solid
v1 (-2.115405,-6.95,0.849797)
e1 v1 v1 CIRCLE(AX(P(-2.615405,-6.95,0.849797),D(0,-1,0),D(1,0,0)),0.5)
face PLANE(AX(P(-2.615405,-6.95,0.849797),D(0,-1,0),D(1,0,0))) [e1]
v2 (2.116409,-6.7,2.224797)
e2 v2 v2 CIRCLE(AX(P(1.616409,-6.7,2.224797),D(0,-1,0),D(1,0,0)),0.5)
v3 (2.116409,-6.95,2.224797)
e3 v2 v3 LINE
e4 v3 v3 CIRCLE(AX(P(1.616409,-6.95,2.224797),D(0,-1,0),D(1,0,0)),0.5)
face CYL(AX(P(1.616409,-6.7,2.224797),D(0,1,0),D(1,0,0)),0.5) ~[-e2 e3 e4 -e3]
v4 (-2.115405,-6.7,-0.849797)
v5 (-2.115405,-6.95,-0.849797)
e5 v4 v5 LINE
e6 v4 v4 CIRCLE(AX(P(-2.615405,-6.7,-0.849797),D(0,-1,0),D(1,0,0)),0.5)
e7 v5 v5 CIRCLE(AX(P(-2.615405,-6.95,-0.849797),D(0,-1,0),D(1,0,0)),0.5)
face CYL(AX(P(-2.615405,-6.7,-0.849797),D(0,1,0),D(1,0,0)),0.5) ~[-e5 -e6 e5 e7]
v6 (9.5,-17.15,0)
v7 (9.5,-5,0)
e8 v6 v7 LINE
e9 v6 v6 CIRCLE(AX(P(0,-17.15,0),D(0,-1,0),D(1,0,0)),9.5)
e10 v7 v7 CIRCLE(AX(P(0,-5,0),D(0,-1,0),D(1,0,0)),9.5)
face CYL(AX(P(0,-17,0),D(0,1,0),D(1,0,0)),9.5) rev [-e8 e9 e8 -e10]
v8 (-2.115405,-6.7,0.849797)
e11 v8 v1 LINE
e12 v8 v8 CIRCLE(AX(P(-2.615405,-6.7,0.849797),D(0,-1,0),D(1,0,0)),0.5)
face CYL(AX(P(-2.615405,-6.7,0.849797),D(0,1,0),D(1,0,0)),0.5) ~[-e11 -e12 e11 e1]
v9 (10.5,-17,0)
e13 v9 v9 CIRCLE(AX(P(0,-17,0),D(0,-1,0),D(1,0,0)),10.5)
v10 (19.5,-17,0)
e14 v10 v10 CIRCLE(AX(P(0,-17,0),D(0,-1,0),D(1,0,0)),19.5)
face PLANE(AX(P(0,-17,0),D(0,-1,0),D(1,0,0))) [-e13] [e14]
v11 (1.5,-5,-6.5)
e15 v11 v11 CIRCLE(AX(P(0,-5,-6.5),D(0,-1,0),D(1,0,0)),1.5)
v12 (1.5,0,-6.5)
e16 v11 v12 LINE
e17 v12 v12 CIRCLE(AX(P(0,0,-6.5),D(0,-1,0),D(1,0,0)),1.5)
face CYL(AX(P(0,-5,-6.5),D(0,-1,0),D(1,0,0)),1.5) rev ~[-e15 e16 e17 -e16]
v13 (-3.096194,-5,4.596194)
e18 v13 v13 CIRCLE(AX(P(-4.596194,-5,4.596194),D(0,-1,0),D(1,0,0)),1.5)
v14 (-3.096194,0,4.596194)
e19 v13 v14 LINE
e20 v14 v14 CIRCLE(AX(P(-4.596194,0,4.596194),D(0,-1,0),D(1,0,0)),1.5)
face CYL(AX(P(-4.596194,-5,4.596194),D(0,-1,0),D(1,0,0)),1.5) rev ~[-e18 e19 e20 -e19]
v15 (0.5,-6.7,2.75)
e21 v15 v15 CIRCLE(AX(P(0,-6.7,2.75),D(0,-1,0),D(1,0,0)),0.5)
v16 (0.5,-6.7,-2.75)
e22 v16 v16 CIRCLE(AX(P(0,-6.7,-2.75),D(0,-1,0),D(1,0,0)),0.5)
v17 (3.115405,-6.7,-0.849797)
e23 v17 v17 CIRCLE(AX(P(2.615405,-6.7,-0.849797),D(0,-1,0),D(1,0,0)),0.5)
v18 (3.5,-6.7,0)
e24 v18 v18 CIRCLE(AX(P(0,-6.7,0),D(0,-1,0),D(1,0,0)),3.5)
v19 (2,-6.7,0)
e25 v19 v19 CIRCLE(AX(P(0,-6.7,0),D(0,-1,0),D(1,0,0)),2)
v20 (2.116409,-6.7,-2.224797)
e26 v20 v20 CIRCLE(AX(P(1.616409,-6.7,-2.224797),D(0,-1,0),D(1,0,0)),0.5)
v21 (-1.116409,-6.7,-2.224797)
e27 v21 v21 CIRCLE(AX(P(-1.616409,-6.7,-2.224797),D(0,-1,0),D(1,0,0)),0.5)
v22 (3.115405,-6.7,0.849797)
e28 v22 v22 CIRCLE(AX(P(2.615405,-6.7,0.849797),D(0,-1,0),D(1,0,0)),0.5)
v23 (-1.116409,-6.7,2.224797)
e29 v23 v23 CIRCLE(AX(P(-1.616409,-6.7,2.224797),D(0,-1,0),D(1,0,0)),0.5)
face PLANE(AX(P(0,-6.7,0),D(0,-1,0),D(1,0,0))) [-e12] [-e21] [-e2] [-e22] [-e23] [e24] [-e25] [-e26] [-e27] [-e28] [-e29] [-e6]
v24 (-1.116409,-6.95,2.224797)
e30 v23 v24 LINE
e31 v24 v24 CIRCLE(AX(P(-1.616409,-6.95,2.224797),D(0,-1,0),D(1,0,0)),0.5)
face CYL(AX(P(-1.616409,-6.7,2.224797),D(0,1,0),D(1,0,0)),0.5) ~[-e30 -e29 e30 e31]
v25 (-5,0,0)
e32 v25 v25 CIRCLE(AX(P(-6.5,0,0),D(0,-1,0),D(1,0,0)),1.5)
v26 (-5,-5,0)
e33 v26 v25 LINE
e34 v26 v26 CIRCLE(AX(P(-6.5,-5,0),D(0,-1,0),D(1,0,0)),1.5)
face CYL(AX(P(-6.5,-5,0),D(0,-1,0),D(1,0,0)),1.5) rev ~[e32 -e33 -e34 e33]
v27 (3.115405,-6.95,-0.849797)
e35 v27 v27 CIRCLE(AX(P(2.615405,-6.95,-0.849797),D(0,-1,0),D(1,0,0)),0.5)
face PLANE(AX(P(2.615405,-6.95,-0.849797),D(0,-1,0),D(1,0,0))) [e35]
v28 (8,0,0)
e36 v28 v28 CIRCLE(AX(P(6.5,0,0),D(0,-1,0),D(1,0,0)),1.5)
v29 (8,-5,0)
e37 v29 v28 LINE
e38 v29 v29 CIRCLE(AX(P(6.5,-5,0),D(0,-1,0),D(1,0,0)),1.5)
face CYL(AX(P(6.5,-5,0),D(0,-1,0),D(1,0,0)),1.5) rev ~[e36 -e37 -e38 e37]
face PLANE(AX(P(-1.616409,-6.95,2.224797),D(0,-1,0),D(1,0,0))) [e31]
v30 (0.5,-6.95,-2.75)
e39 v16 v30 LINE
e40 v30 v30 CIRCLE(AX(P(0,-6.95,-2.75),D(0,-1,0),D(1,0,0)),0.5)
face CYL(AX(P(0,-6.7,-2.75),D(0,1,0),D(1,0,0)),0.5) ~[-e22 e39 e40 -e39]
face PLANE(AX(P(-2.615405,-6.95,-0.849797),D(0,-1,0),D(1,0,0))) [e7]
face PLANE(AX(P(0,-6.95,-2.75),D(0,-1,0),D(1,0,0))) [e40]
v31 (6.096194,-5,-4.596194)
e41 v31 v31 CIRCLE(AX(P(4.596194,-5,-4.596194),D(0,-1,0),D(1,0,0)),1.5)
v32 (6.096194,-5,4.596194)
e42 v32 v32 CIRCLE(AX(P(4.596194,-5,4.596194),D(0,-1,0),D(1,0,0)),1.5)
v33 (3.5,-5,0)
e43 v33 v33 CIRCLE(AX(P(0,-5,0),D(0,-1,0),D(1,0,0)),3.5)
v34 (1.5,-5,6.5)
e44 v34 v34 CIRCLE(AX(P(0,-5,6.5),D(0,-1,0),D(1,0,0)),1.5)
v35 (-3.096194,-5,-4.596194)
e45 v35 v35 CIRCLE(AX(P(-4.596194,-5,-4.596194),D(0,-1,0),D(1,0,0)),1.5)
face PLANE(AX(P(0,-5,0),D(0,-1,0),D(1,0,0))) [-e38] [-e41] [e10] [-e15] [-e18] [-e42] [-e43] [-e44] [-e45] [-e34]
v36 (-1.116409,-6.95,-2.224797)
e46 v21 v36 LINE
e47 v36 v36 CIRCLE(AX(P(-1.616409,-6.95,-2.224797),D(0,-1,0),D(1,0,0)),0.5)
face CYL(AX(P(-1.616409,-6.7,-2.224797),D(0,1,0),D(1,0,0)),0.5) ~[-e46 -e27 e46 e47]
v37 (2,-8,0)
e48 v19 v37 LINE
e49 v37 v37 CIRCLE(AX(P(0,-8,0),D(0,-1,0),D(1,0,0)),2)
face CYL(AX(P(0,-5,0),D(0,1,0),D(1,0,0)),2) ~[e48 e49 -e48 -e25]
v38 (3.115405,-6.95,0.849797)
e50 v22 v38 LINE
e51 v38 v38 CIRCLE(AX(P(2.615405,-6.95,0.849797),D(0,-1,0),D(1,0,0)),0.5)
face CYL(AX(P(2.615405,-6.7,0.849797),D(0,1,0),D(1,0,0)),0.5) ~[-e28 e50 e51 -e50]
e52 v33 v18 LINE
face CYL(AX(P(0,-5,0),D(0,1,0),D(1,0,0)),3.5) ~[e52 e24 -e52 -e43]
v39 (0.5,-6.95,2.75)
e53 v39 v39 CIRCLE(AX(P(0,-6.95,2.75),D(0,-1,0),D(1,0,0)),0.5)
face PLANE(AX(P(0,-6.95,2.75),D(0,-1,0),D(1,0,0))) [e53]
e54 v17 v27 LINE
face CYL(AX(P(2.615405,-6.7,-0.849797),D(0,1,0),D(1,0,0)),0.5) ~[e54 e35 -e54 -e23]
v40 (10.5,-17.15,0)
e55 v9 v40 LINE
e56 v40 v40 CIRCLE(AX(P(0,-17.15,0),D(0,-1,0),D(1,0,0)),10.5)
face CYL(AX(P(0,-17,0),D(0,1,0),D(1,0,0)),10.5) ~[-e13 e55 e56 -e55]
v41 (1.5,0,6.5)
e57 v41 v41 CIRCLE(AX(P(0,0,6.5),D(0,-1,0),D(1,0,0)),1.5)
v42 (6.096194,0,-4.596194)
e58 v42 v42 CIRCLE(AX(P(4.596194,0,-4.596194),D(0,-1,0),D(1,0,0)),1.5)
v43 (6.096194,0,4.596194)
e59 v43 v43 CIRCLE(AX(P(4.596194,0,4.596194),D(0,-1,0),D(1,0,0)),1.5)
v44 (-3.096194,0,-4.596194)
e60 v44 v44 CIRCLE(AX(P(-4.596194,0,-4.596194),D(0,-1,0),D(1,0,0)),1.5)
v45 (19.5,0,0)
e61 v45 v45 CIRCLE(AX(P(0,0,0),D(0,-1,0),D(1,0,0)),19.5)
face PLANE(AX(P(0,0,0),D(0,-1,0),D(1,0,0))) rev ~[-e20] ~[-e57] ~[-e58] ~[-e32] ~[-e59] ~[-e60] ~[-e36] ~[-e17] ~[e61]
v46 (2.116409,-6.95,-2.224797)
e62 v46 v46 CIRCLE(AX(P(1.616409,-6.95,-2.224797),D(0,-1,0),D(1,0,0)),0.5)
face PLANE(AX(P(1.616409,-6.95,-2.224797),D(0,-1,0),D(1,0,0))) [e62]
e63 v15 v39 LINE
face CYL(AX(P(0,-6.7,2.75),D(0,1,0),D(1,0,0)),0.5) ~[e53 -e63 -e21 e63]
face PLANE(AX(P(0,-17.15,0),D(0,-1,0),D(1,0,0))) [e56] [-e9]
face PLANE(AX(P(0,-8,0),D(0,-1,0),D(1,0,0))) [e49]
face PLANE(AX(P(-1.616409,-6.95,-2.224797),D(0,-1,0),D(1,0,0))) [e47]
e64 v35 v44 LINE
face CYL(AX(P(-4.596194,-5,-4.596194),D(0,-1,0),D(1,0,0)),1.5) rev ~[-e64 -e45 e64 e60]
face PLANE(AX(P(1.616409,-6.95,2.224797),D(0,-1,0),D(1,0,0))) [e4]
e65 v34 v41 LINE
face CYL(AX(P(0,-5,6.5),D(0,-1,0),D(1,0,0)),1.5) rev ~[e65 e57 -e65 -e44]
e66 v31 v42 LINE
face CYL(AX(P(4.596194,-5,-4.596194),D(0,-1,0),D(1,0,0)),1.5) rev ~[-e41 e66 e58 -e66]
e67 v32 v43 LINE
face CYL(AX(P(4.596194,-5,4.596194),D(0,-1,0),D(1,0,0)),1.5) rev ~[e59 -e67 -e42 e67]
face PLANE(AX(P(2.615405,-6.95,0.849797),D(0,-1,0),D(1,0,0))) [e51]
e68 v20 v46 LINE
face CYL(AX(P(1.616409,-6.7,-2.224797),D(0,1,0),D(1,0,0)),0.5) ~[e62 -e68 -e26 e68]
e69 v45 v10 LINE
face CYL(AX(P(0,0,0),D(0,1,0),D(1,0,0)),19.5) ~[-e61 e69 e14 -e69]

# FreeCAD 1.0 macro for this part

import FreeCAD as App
import Part
import Sketcher

V = App.Vector

doc = App.newDocument("Part")
params = doc.addObject("Spreadsheet::Sheet", "Params")
for row, (alias, value) in enumerate([
    ("sketch1_diameter", "39 mm"),
    ("pad1_length", "17 mm"),
    ("sketch2_diameter", "19 mm"),
    ("pocket1_length", "12 mm"),
    ("sketch3_diameter", "21 mm"),
    ("sketch3_diameter2", "19 mm"),
    ("pad2_length", "0.15 mm"),
    ("sketch4_diameter", "4 mm"),
    ("pad3_length", "3 mm"),
    ("sketch5_diameter", "7 mm"),
    ("sketch5_diameter2", "4 mm"),
    ("pad4_length", "1.7 mm"),
    ("sketch6_diameter", "1 mm"),
    ("pad5_length", "0.25 mm"),
    ("sketch7_diameter", "3 mm"),
    ("pocket2_length", "25 mm"),
], start=1):
    params.set(f"A{row}", alias)
    params.set(f"B{row}", "=" + value)
    params.setAlias(f"B{row}", alias)

body = doc.addObject("PartDesign::Body", "Body")

# Sketch on XZ plane
sketch1 = body.newObject("Sketcher::SketchObject", "Sketch")
sketch1.AttachmentSupport = (doc.getObject("XZ_Plane"), [""])
sketch1.MapMode = "FlatFace"
sketch1.addGeometry(Part.Circle(V(0, 0, 0), V(0, 0, 1), 20), False)
sketch1.addConstraint([
    Sketcher.Constraint("Coincident", 0, 3, -1, 1),
    Sketcher.Constraint("Diameter", 0, 39.0),
])
sketch1.setExpression("Constraints[1]", "Params.sketch1_diameter")
pad1 = body.newObject("PartDesign::Pad", "Pad")
pad1.Profile = sketch1
pad1.setExpression("Length", "Params.pad1_length")

# Sketch on XZ plane
sketch2 = body.newObject("Sketcher::SketchObject", "Sketch001")
sketch2.AttachmentSupport = (doc.getObject("XZ_Plane"), [""])
sketch2.MapMode = "FlatFace"
sketch2.AttachmentOffset = App.Placement(V(0, 0, 17), App.Rotation())
sketch2.addGeometry(Part.Circle(V(0, 0, 0), V(0, 0, 1), 10), False)
sketch2.addConstraint([
    Sketcher.Constraint("Coincident", 0, 3, -1, 1),
    Sketcher.Constraint("Diameter", 0, 19.0),
])
sketch2.setExpression("Constraints[1]", "Params.sketch2_diameter")
pocket1 = body.newObject("PartDesign::Pocket", "Pocket")
pocket1.Profile = sketch2
pocket1.setExpression("Length", "Params.pocket1_length")

# Sketch on XZ plane
sketch3 = body.newObject("Sketcher::SketchObject", "Sketch002")
sketch3.AttachmentSupport = (doc.getObject("XZ_Plane"), [""])
sketch3.MapMode = "FlatFace"
sketch3.AttachmentOffset = App.Placement(V(0, 0, 17), App.Rotation())
sketch3.addGeometry([
    Part.Circle(V(0, 0, 0), V(0, 0, 1), 10),
    Part.Circle(V(0, 0, 0), V(0, 0, 1), 10),
], False)
sketch3.addConstraint([
    Sketcher.Constraint("Coincident", 0, 3, -1, 1),
    Sketcher.Constraint("Coincident", 1, 3, -1, 1),
    Sketcher.Constraint("Diameter", 0, 21.0),
    Sketcher.Constraint("Diameter", 1, 19.0),
])
sketch3.setExpression("Constraints[2]", "Params.sketch3_diameter")
sketch3.setExpression("Constraints[3]", "Params.sketch3_diameter2")
pad2 = body.newObject("PartDesign::Pad", "Pad001")
pad2.Profile = sketch3
pad2.setExpression("Length", "Params.pad2_length")

# Sketch on XZ plane
sketch4 = body.newObject("Sketcher::SketchObject", "Sketch003")
sketch4.AttachmentSupport = (doc.getObject("XZ_Plane"), [""])
sketch4.MapMode = "FlatFace"
sketch4.AttachmentOffset = App.Placement(V(0, 0, 5), App.Rotation())
sketch4.addGeometry(Part.Circle(V(0, 0, 0), V(0, 0, 1), 2), False)
sketch4.addConstraint([
    Sketcher.Constraint("Coincident", 0, 3, -1, 1),
    Sketcher.Constraint("Diameter", 0, 4.0),
])
sketch4.setExpression("Constraints[1]", "Params.sketch4_diameter")
pad3 = body.newObject("PartDesign::Pad", "Pad002")
pad3.Profile = sketch4
pad3.setExpression("Length", "Params.pad3_length")

# Sketch on XZ plane
sketch5 = body.newObject("Sketcher::SketchObject", "Sketch004")
sketch5.AttachmentSupport = (doc.getObject("XZ_Plane"), [""])
sketch5.MapMode = "FlatFace"
sketch5.AttachmentOffset = App.Placement(V(0, 0, 5), App.Rotation())
sketch5.addGeometry([
    Part.Circle(V(0, 0, 0), V(0, 0, 1), 3.5),
    Part.Circle(V(0, 0, 0), V(0, 0, 1), 2),
], False)
sketch5.addConstraint([
    Sketcher.Constraint("Coincident", 0, 3, -1, 1),
    Sketcher.Constraint("Coincident", 1, 3, -1, 1),
    Sketcher.Constraint("Diameter", 0, 7.0),
    Sketcher.Constraint("Diameter", 1, 4.0),
])
sketch5.setExpression("Constraints[2]", "Params.sketch5_diameter")
sketch5.setExpression("Constraints[3]", "Params.sketch5_diameter2")
pad4 = body.newObject("PartDesign::Pad", "Pad003")
pad4.Profile = sketch5
pad4.setExpression("Length", "Params.pad4_length")

# Sketch on XZ plane
sketch6 = body.newObject("Sketcher::SketchObject", "Sketch005")
sketch6.AttachmentSupport = (doc.getObject("XZ_Plane"), [""])
sketch6.MapMode = "FlatFace"
sketch6.AttachmentOffset = App.Placement(V(0, 0, 6.7), App.Rotation())
sketch6.addGeometry([
    Part.Circle(V(0, 2.8, 0), V(0, 0, 1), 0.5),  # 0
    Part.Circle(V(1.6, 2.2, 0), V(0, 0, 1), 0.5),  # 1
    Part.Circle(V(2.6, -0.8, 0), V(0, 0, 1), 0.5),  # 2
    Part.Circle(V(1.6, -2.2, 0), V(0, 0, 1), 0.5),  # 3
    Part.Circle(V(0, -2.8, 0), V(0, 0, 1), 0.5),  # 4
    Part.Circle(V(2.6, 0.8, 0), V(0, 0, 1), 0.5),  # 5
    Part.Circle(V(-1.6, -2.2, 0), V(0, 0, 1), 0.5),  # 6
    Part.Circle(V(-2.6, -0.8, 0), V(0, 0, 1), 0.5),  # 7
    Part.Circle(V(-2.6, 0.8, 0), V(0, 0, 1), 0.5),  # 8
    Part.Circle(V(-1.6, 2.2, 0), V(0, 0, 1), 0.5),  # 9
], False)
sketch6.addConstraint([
    Sketcher.Constraint("Equal", 0, 1),
    Sketcher.Constraint("Equal", 1, 2),
    Sketcher.Constraint("Equal", 2, 3),
    Sketcher.Constraint("Equal", 3, 4),
    Sketcher.Constraint("Equal", 4, 5),
    Sketcher.Constraint("Equal", 5, 6),
    Sketcher.Constraint("Equal", 6, 7),
    Sketcher.Constraint("Equal", 7, 8),
    Sketcher.Constraint("Equal", 8, 9),
    Sketcher.Constraint("Symmetric", 0, 3, 4, 3, -1, 1),
    Sketcher.Constraint("Symmetric", 1, 3, 6, 3, -1, 1),
    Sketcher.Constraint("Symmetric", 5, 3, 7, 3, -1, 1),
    Sketcher.Constraint("Symmetric", 2, 3, 8, 3, -1, 1),
    Sketcher.Constraint("Symmetric", 3, 3, 9, 3, -1, 1),
    Sketcher.Constraint("Symmetric", 3, 3, 6, 3, -2),
    Sketcher.Constraint("Symmetric", 2, 3, 7, 3, -2),
    Sketcher.Constraint("PointOnObject", 0, 3, -2),
    Sketcher.Constraint("Diameter", 0, 1.0),
    Sketcher.Constraint("DistanceY", 4, 3, 0, 3, 5.5),
    Sketcher.Constraint("DistanceY", 3, 3, 2, 3, 1.375),
    Sketcher.Constraint("DistanceX", -1, 1, 1, 3, 1.616409),
    Sketcher.Constraint("DistanceY", -1, 1, 1, 3, 2.224797),
    Sketcher.Constraint("DistanceX", -1, 1, 2, 3, 2.615405),
])
sketch6.setExpression("Constraints[17]", "Params.sketch6_diameter")
pad5 = body.newObject("PartDesign::Pad", "Pad004")
pad5.Profile = sketch6
pad5.setExpression("Length", "Params.pad5_length")

# Sketch on XZ plane
sketch7 = body.newObject("Sketcher::SketchObject", "Sketch006")
sketch7.AttachmentSupport = (doc.getObject("XZ_Plane"), [""])
sketch7.MapMode = "FlatFace"
sketch7.AttachmentOffset = App.Placement(V(0, 0, 5), App.Rotation())
sketch7.addGeometry([
    Part.Circle(V(0, 6.5, 0), V(0, 0, 1), 1.5),  # 0
    Part.Circle(V(4.6, 4.6, 0), V(0, 0, 1), 1.5),  # 1
    Part.Circle(V(6.5, 0, 0), V(0, 0, 1), 1.5),  # 2
    Part.Circle(V(-4.6, 4.6, 0), V(0, 0, 1), 1.5),  # 3
    Part.Circle(V(-6.5, 0, 0), V(0, 0, 1), 1.5),  # 4
    Part.Circle(V(-4.6, -4.6, 0), V(0, 0, 1), 1.5),  # 5
    Part.Circle(V(4.6, -4.6, 0), V(0, 0, 1), 1.5),  # 6
    Part.Circle(V(0, -6.5, 0), V(0, 0, 1), 1.5),  # 7
], False)
sketch7.addConstraint([
    Sketcher.Constraint("Equal", 0, 1),
    Sketcher.Constraint("Equal", 1, 2),
    Sketcher.Constraint("Equal", 2, 3),
    Sketcher.Constraint("Equal", 3, 4),
    Sketcher.Constraint("Equal", 4, 5),
    Sketcher.Constraint("Equal", 5, 6),
    Sketcher.Constraint("Equal", 6, 7),
    Sketcher.Constraint("Symmetric", 2, 3, 4, 3, -1, 1),
    Sketcher.Constraint("Symmetric", 1, 3, 5, 3, -1, 1),
    Sketcher.Constraint("Symmetric", 3, 3, 6, 3, -1, 1),
    Sketcher.Constraint("Symmetric", 0, 3, 7, 3, -1, 1),
    Sketcher.Constraint("Symmetric", 1, 3, 3, 3, -2),
    Sketcher.Constraint("PointOnObject", 0, 3, -2),
    Sketcher.Constraint("PointOnObject", 2, 3, -1),
    Sketcher.Constraint("Diameter", 0, 3.0),
    Sketcher.Constraint("DistanceX", 4, 3, 2, 3, 13.0),
    Sketcher.Constraint("DistanceY", -1, 1, 0, 3, 6.5),
    Sketcher.Constraint("DistanceX", 3, 3, 1, 3, 9.192388),
    Sketcher.Constraint("DistanceY", 5, 3, 3, 3, 9.192388),
])
sketch7.setExpression("Constraints[14]", "Params.sketch7_diameter")
pocket2 = body.newObject("PartDesign::Pocket", "Pocket001")
pocket2.Profile = sketch7
pocket2.setExpression("Length", "Params.pocket2_length")

doc.recompute()
